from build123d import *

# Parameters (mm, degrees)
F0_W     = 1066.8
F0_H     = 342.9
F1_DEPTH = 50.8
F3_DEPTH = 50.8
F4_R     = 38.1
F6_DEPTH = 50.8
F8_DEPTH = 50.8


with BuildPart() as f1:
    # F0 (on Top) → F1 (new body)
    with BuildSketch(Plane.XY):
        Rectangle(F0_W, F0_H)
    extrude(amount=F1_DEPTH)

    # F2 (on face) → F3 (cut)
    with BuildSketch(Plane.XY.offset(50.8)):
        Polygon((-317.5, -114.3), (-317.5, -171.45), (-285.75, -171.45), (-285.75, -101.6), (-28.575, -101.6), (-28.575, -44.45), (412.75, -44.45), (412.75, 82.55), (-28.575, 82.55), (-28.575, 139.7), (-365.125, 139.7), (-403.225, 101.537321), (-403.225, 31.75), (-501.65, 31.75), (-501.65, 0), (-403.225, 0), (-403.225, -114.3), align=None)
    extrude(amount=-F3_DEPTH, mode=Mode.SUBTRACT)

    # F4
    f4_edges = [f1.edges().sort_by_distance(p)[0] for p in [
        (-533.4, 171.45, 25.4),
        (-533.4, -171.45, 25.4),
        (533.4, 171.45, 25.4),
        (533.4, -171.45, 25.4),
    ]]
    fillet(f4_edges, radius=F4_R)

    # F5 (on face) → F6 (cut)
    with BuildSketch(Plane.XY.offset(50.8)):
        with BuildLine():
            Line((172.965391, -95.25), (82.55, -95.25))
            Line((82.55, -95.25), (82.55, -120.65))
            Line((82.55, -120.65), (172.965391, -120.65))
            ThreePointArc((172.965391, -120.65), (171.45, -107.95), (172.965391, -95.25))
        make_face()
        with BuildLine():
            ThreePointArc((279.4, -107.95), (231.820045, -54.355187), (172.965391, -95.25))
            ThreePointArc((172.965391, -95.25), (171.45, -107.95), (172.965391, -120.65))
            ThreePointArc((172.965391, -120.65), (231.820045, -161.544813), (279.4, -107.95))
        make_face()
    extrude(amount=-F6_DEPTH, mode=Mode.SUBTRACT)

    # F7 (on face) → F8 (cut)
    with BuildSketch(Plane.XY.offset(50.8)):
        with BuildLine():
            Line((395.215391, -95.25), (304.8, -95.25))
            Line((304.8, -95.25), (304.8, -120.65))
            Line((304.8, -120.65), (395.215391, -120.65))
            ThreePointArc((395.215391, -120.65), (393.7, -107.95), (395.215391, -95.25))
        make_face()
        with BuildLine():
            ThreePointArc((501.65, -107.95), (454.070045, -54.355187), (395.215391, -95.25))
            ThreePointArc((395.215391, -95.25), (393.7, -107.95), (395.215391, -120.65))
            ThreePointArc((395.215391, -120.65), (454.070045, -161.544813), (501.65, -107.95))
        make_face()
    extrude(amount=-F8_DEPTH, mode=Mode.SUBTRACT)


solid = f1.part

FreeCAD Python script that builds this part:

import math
import FreeCAD as App
import Part
import Sketcher
Q = App.Units.Quantity


def edges_at(feature, points):
    """Names of the edges that pass closest to the given points."""
    edges = feature.Shape.Edges
    near = lambda p: min(range(len(edges)), key=lambda i: edges[i].distToShape(Part.Vertex(*p))[0])
    return sorted({f"Edge{near(p) + 1}" for p in points})

doc = App.newDocument("Part")
body = doc.addObject("PartDesign::Body", "Body")

sketch1 = doc.addObject("Sketcher::SketchObject", "Sketch")
body.addObject(sketch1)
sketch1.AttachmentSupport = (doc.XY_Plane, [""])
sketch1.MapMode = "FlatFace"
sketch1.addGeometry([
    Part.LineSegment(App.Vector(-533.4, 171.45, 0), App.Vector(-533.4, -171.45, 0)),
    Part.LineSegment(App.Vector(-533.4, -171.45, 0), App.Vector(533.4, -171.45, 0)),
    Part.LineSegment(App.Vector(533.4, -171.45, 0), App.Vector(533.4, 171.45, 0)),
    Part.LineSegment(App.Vector(533.4, 171.45, 0), App.Vector(-533.4, 171.45, 0)),
], False)
sketch1.addConstraint([
    Sketcher.Constraint("Coincident", 0, 2, 1, 1),
    Sketcher.Constraint("Coincident", 1, 2, 2, 1),
    Sketcher.Constraint("Coincident", 2, 2, 3, 1),
    Sketcher.Constraint("Coincident", 3, 2, 0, 1),
    Sketcher.Constraint("Vertical", 0),
    Sketcher.Constraint("Horizontal", 1),
    Sketcher.Constraint("Vertical", 2),
    Sketcher.Constraint("Horizontal", 3),
    Sketcher.Constraint("Symmetric", 0, 2, 2, 2, -1, 1),
    Sketcher.Constraint("DistanceX", 1, 1, 1, 2, Q("42 in")),
    Sketcher.Constraint("DistanceY", 0, 2, 0, 1, Q("13.5 in")),
])
pad1 = doc.addObject("PartDesign::Pad", "Pad")
body.addObject(pad1)
pad1.Profile = sketch1
pad1.Length = Q("2 in")

sketch2 = doc.addObject("Sketcher::SketchObject", "Sketch001")
body.addObject(sketch2)
sketch2.AttachmentSupport = (doc.XY_Plane, [""])
sketch2.MapMode = "FlatFace"
sketch2.AttachmentOffset = App.Placement(App.Vector(0, 0, 2 * 25.4), App.Rotation())
sketch2.addGeometry([
    Part.LineSegment(App.Vector(-317.5, -114.3, 0), App.Vector(-317.5, -171.45, 0)),
    Part.LineSegment(App.Vector(-317.5, -171.45, 0), App.Vector(-285.75, -171.45, 0)),
    Part.LineSegment(App.Vector(-285.75, -171.45, 0), App.Vector(-285.75, -101.6, 0)),
    Part.LineSegment(App.Vector(-285.75, -101.6, 0), App.Vector(-28.575, -101.6, 0)),
    Part.LineSegment(App.Vector(-28.575, -101.6, 0), App.Vector(-28.575, -44.45, 0)),
    Part.LineSegment(App.Vector(-28.575, -44.45, 0), App.Vector(412.75, -44.45, 0)),
    Part.LineSegment(App.Vector(412.75, -44.45, 0), App.Vector(412.75, 82.55, 0)),
    Part.LineSegment(App.Vector(412.75, 82.55, 0), App.Vector(-28.575, 82.55, 0)),
    Part.LineSegment(App.Vector(-28.575, 82.55, 0), App.Vector(-28.575, 139.7, 0)),
    Part.LineSegment(App.Vector(-28.575, 139.7, 0), App.Vector(-365.125, 139.7, 0)),
    Part.LineSegment(App.Vector(-365.125, 139.7, 0), App.Vector(-403.225, 101.537321, 0)),
    Part.LineSegment(App.Vector(-403.225, 101.537321, 0), App.Vector(-403.225, 31.75, 0)),
    Part.LineSegment(App.Vector(-403.225, 31.75, 0), App.Vector(-501.65, 31.75, 0)),
    Part.LineSegment(App.Vector(-501.65, 31.75, 0), App.Vector(-501.65, 0, 0)),
    Part.LineSegment(App.Vector(-501.65, 0, 0), App.Vector(-403.225, 0, 0)),
    Part.LineSegment(App.Vector(-403.225, 0, 0), App.Vector(-403.225, -114.3, 0)),
    Part.LineSegment(App.Vector(-403.225, -114.3, 0), App.Vector(-317.5, -114.3, 0)),
], False)
sketch2.addConstraint([
    Sketcher.Constraint("Coincident", 0, 2, 1, 1),
    Sketcher.Constraint("Coincident", 1, 2, 2, 1),
    Sketcher.Constraint("Coincident", 2, 2, 3, 1),
    Sketcher.Constraint("Coincident", 3, 2, 4, 1),
    Sketcher.Constraint("Coincident", 4, 2, 5, 1),
    Sketcher.Constraint("Coincident", 5, 2, 6, 1),
    Sketcher.Constraint("Coincident", 6, 2, 7, 1),
    Sketcher.Constraint("Coincident", 7, 2, 8, 1),
    Sketcher.Constraint("Coincident", 8, 2, 9, 1),
    Sketcher.Constraint("Coincident", 9, 2, 10, 1),
    Sketcher.Constraint("Coincident", 10, 2, 11, 1),
    Sketcher.Constraint("Coincident", 11, 2, 12, 1),
    Sketcher.Constraint("Coincident", 12, 2, 13, 1),
    Sketcher.Constraint("Coincident", 13, 2, 14, 1),
    Sketcher.Constraint("Coincident", 14, 2, 15, 1),
    Sketcher.Constraint("Coincident", 15, 2, 16, 1),
    Sketcher.Constraint("Coincident", 16, 2, 0, 1),
    Sketcher.Constraint("Vertical", 0),
    Sketcher.Constraint("Horizontal", 1),
    Sketcher.Constraint("Vertical", 2),
    Sketcher.Constraint("Horizontal", 3),
    Sketcher.Constraint("Vertical", 4),
    Sketcher.Constraint("Horizontal", 5),
    Sketcher.Constraint("Vertical", 6),
    Sketcher.Constraint("Horizontal", 7),
    Sketcher.Constraint("Vertical", 8),
    Sketcher.Constraint("Horizontal", 9),
    Sketcher.Constraint("Vertical", 11),
    Sketcher.Constraint("Horizontal", 12),
    Sketcher.Constraint("Vertical", 13),
    Sketcher.Constraint("Horizontal", 14),
    Sketcher.Constraint("Vertical", 15),
    Sketcher.Constraint("Horizontal", 16),
    Sketcher.Constraint("PointOnObject", 13, 2, -1),
    Sketcher.Constraint("Vertical", 4, 2, 7, 2),
    Sketcher.Constraint("Vertical", 11, 2, 14, 2),
    Sketcher.Constraint("Equal", 0, 4),
    Sketcher.Constraint("Equal", 4, 8),
    Sketcher.Constraint("Equal", 1, 13),
    Sketcher.Constraint("DistanceY", 6, 1, 6, 2, Q("5 in")),
    Sketcher.Constraint("DistanceY", 15, 2, 15, 1, Q("4.5 in")),
    Sketcher.Constraint("DistanceY", 2, 2, -1, 1, Q("4 in")),
    Sketcher.Constraint("DistanceY", 1, 2, 4, 2, Q("5 in")),
    Sketcher.Constraint("DistanceY", 0, 2, 11, 2, Q("8 in")),
    Sketcher.Constraint("DistanceX", 9, 2, 9, 1, Q("13.25 in")),
    Sketcher.Constraint("DistanceX", 0, 2, -1, 1, Q("12.5 in")),
    Sketcher.Constraint("DistanceX", 2, 2, 5, 2, Q("27.5 in")),
    Sketcher.Constraint("DistanceX", 10, 2, 9, 2, Q("1.5 in")),
    Sketcher.Constraint("DistanceX", 12, 2, 2, 2, Q("8.5 in")),
    Sketcher.Constraint("DistanceX", 3, 1, 3, 2, Q("10.125 in")),
    Sketcher.Constraint("DistanceY", 11, 2, 11, 1, Q("69.787321 mm")),
])
pocket1 = doc.addObject("PartDesign::Pocket", "Pocket")
body.addObject(pocket1)
pocket1.Profile = sketch2
pocket1.Length = Q("2 in")
doc.recompute()

fillet = doc.addObject("PartDesign::Fillet", "Fillet")
body.addObject(fillet)
fillet.Base = (pocket1, edges_at(pocket1, [
    (-533.4, 171.45, 25.4),
    (-533.4, -171.45, 25.4),
    (533.4, 171.45, 25.4),
    (533.4, -171.45, 25.4),
]))
fillet.Radius = Q("1.5 in")

sketch3 = doc.addObject("Sketcher::SketchObject", "Sketch002")
body.addObject(sketch3)
sketch3.AttachmentSupport = (doc.XY_Plane, [""])
sketch3.MapMode = "FlatFace"
sketch3.AttachmentOffset = App.Placement(App.Vector(0, 0, 2 * 25.4), App.Rotation())
sketch3.addGeometry([
    Part.LineSegment(App.Vector(172.965391, -95.25, 0), App.Vector(82.55, -95.25, 0)),
    Part.LineSegment(App.Vector(82.55, -95.25, 0), App.Vector(82.55, -120.65, 0)),
    Part.LineSegment(App.Vector(82.55, -120.65, 0), App.Vector(172.965391, -120.65, 0)),
    Part.ArcOfCircle(Part.Circle(App.Vector(225.425, -107.95, 0), App.Vector(0, 0, 1), 53.975), math.radians(-166.391039), math.radians(0)),
    Part.ArcOfCircle(Part.Circle(App.Vector(225.425, -107.95, 0), App.Vector(0, 0, 1), 53.975), math.radians(0), math.radians(166.391039)),
], False)
sketch3.addConstraint([
    Sketcher.Constraint("Coincident", 0, 2, 1, 1),
    Sketcher.Constraint("Coincident", 1, 2, 2, 1),
    Sketcher.Constraint("Coincident", 2, 2, 3, 1),
    Sketcher.Constraint("Tangent", 3, 2, 4, 1),
    Sketcher.Constraint("Coincident", 4, 2, 0, 1),
    Sketcher.Constraint("Horizontal", 0),
    Sketcher.Constraint("Vertical", 1),
    Sketcher.Constraint("Horizontal", 2),
    Sketcher.Constraint("Equal", 3, 4),
    Sketcher.Constraint("Horizontal", 4, 3, 3, 2),
    Sketcher.Constraint("Vertical", 2, 2, 4, 2),
    Sketcher.Constraint("DistanceY", 1, 2, 1, 1, Q("1 in")),
    Sketcher.Constraint("DistanceX", -1, 1, 3, 2, Q("11 in")),
    Sketcher.Constraint("Radius", 3, Q("2.125 in")),
    Sketcher.Constraint("DistanceY", 3, 3, -1, 1, Q("4.25 in")),
    Sketcher.Constraint("DistanceX", -1, 1, 0, 2, Q("3.25 in")),
])
pocket2 = doc.addObject("PartDesign::Pocket", "Pocket001")
body.addObject(pocket2)
pocket2.Profile = sketch3
pocket2.Length = Q("2 in")

sketch4 = doc.addObject("Sketcher::SketchObject", "Sketch003")
body.addObject(sketch4)
sketch4.AttachmentSupport = (doc.XY_Plane, [""])
sketch4.MapMode = "FlatFace"
sketch4.AttachmentOffset = App.Placement(App.Vector(0, 0, 2 * 25.4), App.Rotation())
sketch4.addGeometry([
    Part.LineSegment(App.Vector(395.215391, -95.25, 0), App.Vector(304.8, -95.25, 0)),
    Part.LineSegment(App.Vector(304.8, -95.25, 0), App.Vector(304.8, -120.65, 0)),
    Part.LineSegment(App.Vector(304.8, -120.65, 0), App.Vector(395.215391, -120.65, 0)),
    Part.ArcOfCircle(Part.Circle(App.Vector(447.675, -107.95, 0), App.Vector(0, 0, 1), 53.975), math.radians(-166.391039), math.radians(0)),
    Part.ArcOfCircle(Part.Circle(App.Vector(447.675, -107.95, 0), App.Vector(0, 0, 1), 53.975), math.radians(0), math.radians(166.391039)),
], False)
sketch4.addConstraint([
    Sketcher.Constraint("Coincident", 0, 2, 1, 1),
    Sketcher.Constraint("Coincident", 1, 2, 2, 1),
    Sketcher.Constraint("Coincident", 2, 2, 3, 1),
    Sketcher.Constraint("Tangent", 3, 2, 4, 1),
    Sketcher.Constraint("Coincident", 4, 2, 0, 1),
    Sketcher.Constraint("Horizontal", 0),
    Sketcher.Constraint("Vertical", 1),
    Sketcher.Constraint("Horizontal", 2),
    Sketcher.Constraint("Equal", 3, 4),
    Sketcher.Constraint("Horizontal", 4, 3, 3, 2),
    Sketcher.Constraint("Vertical", 2, 2, 4, 2),
    Sketcher.Constraint("DistanceY", 1, 2, 1, 1, Q("1 in")),
    Sketcher.Constraint("DistanceX", -1, 1, 0, 2, Q("12 in")),
    Sketcher.Constraint("Radius", 3, Q("2.125 in")),
    Sketcher.Constraint("DistanceY", 3, 3, -1, 1, Q("4.25 in")),
    Sketcher.Constraint("DistanceX", -1, 1, 3, 2, Q("19.75 in")),
])
pocket3 = doc.addObject("PartDesign::Pocket", "Pocket002")
body.addObject(pocket3)
pocket3.Profile = sketch4
pocket3.Length = Q("2 in")

doc.recompute()
